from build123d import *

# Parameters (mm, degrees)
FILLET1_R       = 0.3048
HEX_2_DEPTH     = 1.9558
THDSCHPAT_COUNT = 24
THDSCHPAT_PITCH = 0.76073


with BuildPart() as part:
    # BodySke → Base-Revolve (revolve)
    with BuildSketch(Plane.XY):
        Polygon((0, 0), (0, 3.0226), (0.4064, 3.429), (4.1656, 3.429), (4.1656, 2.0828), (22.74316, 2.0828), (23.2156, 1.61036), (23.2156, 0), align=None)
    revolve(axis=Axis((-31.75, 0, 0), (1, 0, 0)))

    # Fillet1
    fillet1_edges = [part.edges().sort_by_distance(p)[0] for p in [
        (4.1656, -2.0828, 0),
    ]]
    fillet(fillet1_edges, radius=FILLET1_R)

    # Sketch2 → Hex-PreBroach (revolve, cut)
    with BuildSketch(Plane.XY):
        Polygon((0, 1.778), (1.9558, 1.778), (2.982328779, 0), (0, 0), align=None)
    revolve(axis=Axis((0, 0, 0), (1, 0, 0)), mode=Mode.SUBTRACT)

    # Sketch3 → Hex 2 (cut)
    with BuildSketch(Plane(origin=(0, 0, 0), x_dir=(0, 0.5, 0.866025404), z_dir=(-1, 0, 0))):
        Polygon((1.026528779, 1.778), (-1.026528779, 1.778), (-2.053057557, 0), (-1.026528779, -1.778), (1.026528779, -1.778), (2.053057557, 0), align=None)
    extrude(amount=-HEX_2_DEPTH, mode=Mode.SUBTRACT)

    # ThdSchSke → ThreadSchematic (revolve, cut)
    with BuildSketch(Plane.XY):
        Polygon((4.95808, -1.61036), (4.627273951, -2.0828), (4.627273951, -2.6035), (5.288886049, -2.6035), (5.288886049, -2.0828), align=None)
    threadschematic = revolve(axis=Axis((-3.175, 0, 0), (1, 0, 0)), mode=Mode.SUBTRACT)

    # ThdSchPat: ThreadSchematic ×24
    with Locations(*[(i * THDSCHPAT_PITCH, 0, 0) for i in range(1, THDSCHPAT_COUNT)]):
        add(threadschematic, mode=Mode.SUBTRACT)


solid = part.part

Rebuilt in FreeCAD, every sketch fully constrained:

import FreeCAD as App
import Part
import Sketcher
from FreeCAD import Vector
Q = App.Units.Quantity


def edges_at(feature, points):
    """Names of the edges that pass closest to the given points."""
    edges = feature.Shape.Edges
    near = lambda p: min(range(len(edges)), key=lambda i: edges[i].distToShape(Part.Vertex(*p))[0])
    return sorted({f"Edge{near(p) + 1}" for p in points})


def add_polygon(sketch, points):
    """Adds a closed chain of lines whose ends are joined by coincident constraints."""
    first, n = sketch.GeometryCount, len(points)
    for a, b in zip(points, points[1:] + points[:1]):
        sketch.addGeometry(Part.LineSegment(App.Vector(*a, 0), App.Vector(*b, 0)), False)
    for i in range(n):
        sketch.addConstraint(Sketcher.Constraint("Coincident", first + i, 2, first + (i + 1) % n, 1))

doc = App.newDocument("Part")
body = doc.addObject("PartDesign::Body", "Body")

# Sketch on XY plane
sketch1 = doc.addObject("Sketcher::SketchObject", "Sketch")
body.addObject(sketch1)
sketch1.AttachmentSupport = (doc.XY_Plane, [""])
sketch1.MapMode = "FlatFace"
add_polygon(sketch1, [(0, 3), (0, 0), (23.2, 0), (23.2, 1.6), (22.7, 2.1), (4.2, 2.1), (4.2, 3.4), (0.4, 3.4)])  # lines 0-7
sketch1.addConstraint([
    Sketcher.Constraint("Vertical", 0),
    Sketcher.Constraint("Horizontal", 1),
    Sketcher.Constraint("Vertical", 2),
    Sketcher.Constraint("Horizontal", 4),
    Sketcher.Constraint("Vertical", 5),
    Sketcher.Constraint("Horizontal", 6),
    Sketcher.Constraint("Coincident", 0, 2, -1, 1),
    Sketcher.Constraint("Perpendicular", 3, 7),
    Sketcher.Constraint("Angle", 3, Q("135 deg")),
    Sketcher.Constraint("DistanceX", 1, 1, 1, 2, Q("0.914 in")),
    Sketcher.Constraint("DistanceX", 6, 2, 6, 1, Q("0.148 in")),
    Sketcher.Constraint("DistanceY", 0, 2, 0, 1, Q("0.119 in")),
    Sketcher.Constraint("DistanceY", 5, 1, 5, 2, Q("0.053 in")),
    Sketcher.Constraint("DistanceX", 4, 2, 2, 2, Q("0.75 in")),
    Sketcher.Constraint("DistanceX", 4, 2, 4, 1, Q("0.7314 in")),
])
revolution = doc.addObject("PartDesign::Revolution", "Revolution")
body.addObject(revolution)
revolution.Profile = sketch1
revolution.ReferenceAxis = (sketch1, ["H_Axis"])
revolution.Angle = 360
doc.recompute()

fillet = doc.addObject("PartDesign::Fillet", "Fillet")
body.addObject(fillet)
fillet.Base = (revolution, edges_at(revolution, [(4.166, -2.083, 0)]))
fillet.Radius = Q("0.012 in")

# Sketch on XY plane
sketch2 = doc.addObject("Sketcher::SketchObject", "Sketch001")
body.addObject(sketch2)
sketch2.AttachmentSupport = (doc.XY_Plane, [""])
sketch2.MapMode = "FlatFace"
add_polygon(sketch2, [(2, 1.8), (0, 1.8), (0, 0), (3, 0)])  # lines 0-3
sketch2.addConstraint([
    Sketcher.Constraint("Horizontal", 0),
    Sketcher.Constraint("Vertical", 1),
    Sketcher.Constraint("Horizontal", 2),
    Sketcher.Constraint("Coincident", 1, 2, -1, 1),
    Sketcher.Constraint("Angle", 3, Q("120 deg")),
    Sketcher.Constraint("DistanceY", 1, 2, 1, 1, Q("0.07 in")),
    Sketcher.Constraint("DistanceX", 0, 2, 0, 1, Q("0.077 in")),
])
groove = doc.addObject("PartDesign::Groove", "Groove")
body.addObject(groove)
groove.Profile = sketch2
groove.ReferenceAxis = (sketch2, ["H_Axis"])
groove.Angle = 360

# Sketch on YZ plane
sketch3 = doc.addObject("Sketcher::SketchObject", "Sketch002")
body.addObject(sketch3)
sketch3.AttachmentSupport = (doc.YZ_Plane, [""])
sketch3.MapMode = "FlatFace"
add_polygon(sketch3, [(2.1, 0), (1, -1.8), (-1, -1.8), (-2.1, 0), (-1, 1.8), (1, 1.8)])  # lines 0-5
sketch3.addConstraint([
    Sketcher.Constraint("Horizontal", 1),
    Sketcher.Constraint("Horizontal", 4),
    Sketcher.Constraint("Symmetric", 0, 2, 3, 2, -1, 1),
    Sketcher.Constraint("Symmetric", 2, 2, 5, 2, -1, 1),
    Sketcher.Constraint("PointOnObject", 2, 2, -1),
    Sketcher.Constraint("Parallel", 2, 5),
    Sketcher.Constraint("Vertical", 1, 2, 3, 2),
    Sketcher.Constraint("Angle", 0, Q("-120 deg")),
    Sketcher.Constraint("DistanceY", 0, 2, -1, 1, Q("0.07 in")),
    Sketcher.Constraint("DistanceX", 1, 2, 1, 1, Q("2.053058 mm")),
])
pocket1 = doc.addObject("PartDesign::Pocket", "Pocket")
body.addObject(pocket1)
pocket1.Profile = sketch3
pocket1.Length = Q("0.077 in")
pocket1.Reversed = True

# Sketch on XY plane
sketch4 = doc.addObject("Sketcher::SketchObject", "Sketch003")
body.addObject(sketch4)
sketch4.AttachmentSupport = (doc.XY_Plane, [""])
sketch4.MapMode = "FlatFace"
add_polygon(sketch4, [(5, -1.6), (4.6, -2.1), (4.6, -2.6), (5.3, -2.6), (5.3, -2.1)])  # lines 0-4
sketch4.addConstraint([
    Sketcher.Constraint("Vertical", 1),
    Sketcher.Constraint("Horizontal", 2),
    Sketcher.Constraint("Vertical", 3),
    Sketcher.Constraint("Horizontal", 0, 2, 3, 2),
    Sketcher.Constraint("Equal", 0, 4),
    Sketcher.Constraint("Angle", 0, Q("-125 deg")),
    Sketcher.Constraint("DistanceY", 1, 2, 1, 1, Q("0.0205 in")),
    Sketcher.Constraint("DistanceY", 0, 2, -1, 1, Q("0.082 in")),
    Sketcher.Constraint("DistanceX", -1, 1, 4, 2, Q("0.1952 in")),
    Sketcher.Constraint("DistanceY", 4, 2, -1, 1, Q("0.0634 in")),
])
groove2 = doc.addObject("PartDesign::Groove", "Groove001")
body.addObject(groove2)
groove2.Profile = sketch4
groove2.ReferenceAxis = (sketch4, ["H_Axis"])
groove2.Angle = 360
doc.recompute()

linearpattern = doc.addObject("PartDesign::LinearPattern", "LinearPattern")
body.addObject(linearpattern)
linearpattern.Originals = [groove2]
linearpattern.Direction = (doc.X_Axis, [""])
linearpattern.Mode = "offset"
linearpattern.Offset = 0.76073
linearpattern.Occurrences = 24
body.Tip = linearpattern

doc.recompute()
